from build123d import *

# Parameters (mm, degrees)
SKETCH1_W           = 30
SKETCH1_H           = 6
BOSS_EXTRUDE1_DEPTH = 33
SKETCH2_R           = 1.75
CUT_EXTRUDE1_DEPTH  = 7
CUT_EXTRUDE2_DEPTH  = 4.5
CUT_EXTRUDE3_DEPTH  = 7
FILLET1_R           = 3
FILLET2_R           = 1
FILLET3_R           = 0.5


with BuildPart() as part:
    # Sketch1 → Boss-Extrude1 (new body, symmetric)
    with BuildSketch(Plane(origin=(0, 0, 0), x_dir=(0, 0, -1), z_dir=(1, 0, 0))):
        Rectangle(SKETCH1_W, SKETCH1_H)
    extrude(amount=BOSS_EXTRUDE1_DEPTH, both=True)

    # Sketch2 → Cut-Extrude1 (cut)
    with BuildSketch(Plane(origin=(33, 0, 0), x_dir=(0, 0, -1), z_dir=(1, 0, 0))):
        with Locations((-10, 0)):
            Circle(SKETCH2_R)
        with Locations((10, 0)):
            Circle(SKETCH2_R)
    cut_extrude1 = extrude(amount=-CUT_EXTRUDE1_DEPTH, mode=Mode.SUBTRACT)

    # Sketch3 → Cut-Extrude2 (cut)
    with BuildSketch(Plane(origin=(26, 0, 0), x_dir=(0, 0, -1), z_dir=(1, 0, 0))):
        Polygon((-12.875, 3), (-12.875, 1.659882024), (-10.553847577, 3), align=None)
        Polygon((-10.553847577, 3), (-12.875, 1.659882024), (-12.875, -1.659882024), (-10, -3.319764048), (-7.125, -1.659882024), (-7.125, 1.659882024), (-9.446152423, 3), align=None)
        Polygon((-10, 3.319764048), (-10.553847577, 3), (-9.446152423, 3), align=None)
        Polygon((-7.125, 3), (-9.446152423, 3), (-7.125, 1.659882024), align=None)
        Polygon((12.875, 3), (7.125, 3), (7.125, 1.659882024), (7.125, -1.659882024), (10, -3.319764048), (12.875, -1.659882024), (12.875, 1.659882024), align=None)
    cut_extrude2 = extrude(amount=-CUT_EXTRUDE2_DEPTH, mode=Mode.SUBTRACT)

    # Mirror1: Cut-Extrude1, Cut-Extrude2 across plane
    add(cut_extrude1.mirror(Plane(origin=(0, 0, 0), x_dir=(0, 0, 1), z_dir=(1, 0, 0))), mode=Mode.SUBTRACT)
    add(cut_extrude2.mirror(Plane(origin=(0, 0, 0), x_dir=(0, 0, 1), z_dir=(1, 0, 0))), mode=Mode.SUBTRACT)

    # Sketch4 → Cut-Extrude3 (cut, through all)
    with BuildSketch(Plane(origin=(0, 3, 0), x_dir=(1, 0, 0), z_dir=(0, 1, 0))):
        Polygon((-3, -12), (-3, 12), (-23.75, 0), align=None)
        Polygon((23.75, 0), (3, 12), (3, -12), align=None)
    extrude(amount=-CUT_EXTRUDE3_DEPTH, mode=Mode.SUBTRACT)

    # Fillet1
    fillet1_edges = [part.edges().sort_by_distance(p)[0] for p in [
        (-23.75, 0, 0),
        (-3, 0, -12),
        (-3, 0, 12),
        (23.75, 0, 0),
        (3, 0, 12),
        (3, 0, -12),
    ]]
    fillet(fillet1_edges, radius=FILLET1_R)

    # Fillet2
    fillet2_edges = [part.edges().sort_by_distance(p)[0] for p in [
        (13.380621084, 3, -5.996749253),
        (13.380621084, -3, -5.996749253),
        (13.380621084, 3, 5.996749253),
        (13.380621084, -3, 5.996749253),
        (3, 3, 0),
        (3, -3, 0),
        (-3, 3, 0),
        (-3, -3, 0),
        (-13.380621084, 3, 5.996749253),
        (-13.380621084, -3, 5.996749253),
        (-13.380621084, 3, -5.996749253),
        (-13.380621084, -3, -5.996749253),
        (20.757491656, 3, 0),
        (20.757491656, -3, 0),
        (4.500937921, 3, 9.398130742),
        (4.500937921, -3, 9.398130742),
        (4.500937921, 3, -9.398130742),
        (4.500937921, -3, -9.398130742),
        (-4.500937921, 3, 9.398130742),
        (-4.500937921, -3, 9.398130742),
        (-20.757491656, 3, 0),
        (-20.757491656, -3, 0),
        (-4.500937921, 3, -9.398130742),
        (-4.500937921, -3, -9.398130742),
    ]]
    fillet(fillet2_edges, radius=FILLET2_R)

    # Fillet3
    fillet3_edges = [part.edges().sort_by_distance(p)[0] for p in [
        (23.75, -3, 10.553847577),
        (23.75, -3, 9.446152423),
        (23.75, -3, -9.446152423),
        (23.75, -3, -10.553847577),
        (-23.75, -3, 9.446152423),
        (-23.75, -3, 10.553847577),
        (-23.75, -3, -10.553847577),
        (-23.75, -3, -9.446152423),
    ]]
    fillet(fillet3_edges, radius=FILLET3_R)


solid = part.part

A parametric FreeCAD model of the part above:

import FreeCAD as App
import Part
import Sketcher
from FreeCAD import Vector
Q = App.Units.Quantity


def edges_at(feature, points):
    """Names of the edges that pass closest to the given points."""
    edges = feature.Shape.Edges
    near = lambda p: min(range(len(edges)), key=lambda i: edges[i].distToShape(Part.Vertex(*p))[0])
    return sorted({f"Edge{near(p) + 1}" for p in points})

doc = App.newDocument("Part")
body = doc.addObject("PartDesign::Body", "Body")

# Sketch on YZ plane
sketch1 = body.newObject("Sketcher::SketchObject", "Sketch")
sketch1.AttachmentSupport = (doc.getObject("YZ_Plane"), [""])
sketch1.MapMode = "FlatFace"
sketch1.addGeometry([
    Part.LineSegment(Vector(3, 15, 0), Vector(-3, 15, 0)),
    Part.LineSegment(Vector(-3, 15, 0), Vector(-3, -15, 0)),
    Part.LineSegment(Vector(-3, -15, 0), Vector(3, -15, 0)),
    Part.LineSegment(Vector(3, -15, 0), Vector(3, 15, 0)),
], False)
sketch1.addConstraint([
    Sketcher.Constraint("Coincident", 0, 2, 1, 1),
    Sketcher.Constraint("Coincident", 1, 2, 2, 1),
    Sketcher.Constraint("Coincident", 2, 2, 3, 1),
    Sketcher.Constraint("Coincident", 3, 2, 0, 1),
    Sketcher.Constraint("Horizontal", 0),
    Sketcher.Constraint("Vertical", 1),
    Sketcher.Constraint("Horizontal", 2),
    Sketcher.Constraint("Vertical", 3),
    Sketcher.Constraint("Symmetric", 0, 2, 2, 2, -1, 1),
    Sketcher.Constraint("DistanceX", 0, 2, 0, 1, Q("6 mm")),
    Sketcher.Constraint("DistanceY", 1, 2, 1, 1, Q("30 mm")),
])
pad1 = body.newObject("PartDesign::Pad", "Pad")
pad1.Profile = sketch1
pad1.Length = 66
pad1.Midplane = True

# Sketch on YZ plane
sketch2 = body.newObject("Sketcher::SketchObject", "Sketch001")
sketch2.AttachmentSupport = (doc.getObject("YZ_Plane"), [""])
sketch2.MapMode = "FlatFace"
sketch2.AttachmentOffset = App.Placement(Vector(0, 0, 33), App.Rotation())
sketch2.addGeometry([
    Part.Circle(Vector(0, 10, 0), Vector(0, 0, 1), 1.8),
    Part.Circle(Vector(0, -10, 0), Vector(0, 0, 1), 1.8),
], False)
sketch2.addConstraint([
    Sketcher.Constraint("Equal", 0, 1),
    Sketcher.Constraint("Symmetric", 0, 3, 1, 3, -1, 1),
    Sketcher.Constraint("PointOnObject", 0, 3, -2),
    Sketcher.Constraint("Diameter", 0, Q("3.5 mm")),
    Sketcher.Constraint("DistanceY", -1, 1, 0, 3, Q("10 mm")),
])
pocket1 = body.newObject("PartDesign::Pocket", "Pocket")
pocket1.Profile = sketch2
pocket1.Length = 7

# Sketch on YZ plane
sketch3 = body.newObject("Sketcher::SketchObject", "Sketch002")
sketch3.AttachmentSupport = (doc.getObject("YZ_Plane"), [""])
sketch3.MapMode = "FlatFace"
sketch3.AttachmentOffset = App.Placement(Vector(0, 0, 26), App.Rotation())
sketch3.addGeometry([
    Part.LineSegment(Vector(3, 12.9, 0), Vector(-1.7, 12.9, 0)),  # 0
    Part.LineSegment(Vector(-1.7, 12.9, 0), Vector(-3.3, 10, 0)),  # 1
    Part.LineSegment(Vector(-3.3, 10, 0), Vector(-1.7, 7.1, 0)),  # 2
    Part.LineSegment(Vector(-1.7, 7.1, 0), Vector(3, 7.1, 0)),  # 3
    Part.LineSegment(Vector(3, 7.1, 0), Vector(3, 9.4, 0)),  # 4
    Part.LineSegment(Vector(3, 9.4, 0), Vector(3.3, 10, 0)),  # 5
    Part.LineSegment(Vector(3.3, 10, 0), Vector(3, 10.6, 0)),  # 6
    Part.LineSegment(Vector(3, 10.6, 0), Vector(3, 12.9, 0)),  # 7
    Part.LineSegment(Vector(3, -12.9, 0), Vector(3, -7.1, 0)),  # 8
    Part.LineSegment(Vector(3, -7.1, 0), Vector(-1.7, -7.1, 0)),  # 9
    Part.LineSegment(Vector(-1.7, -7.1, 0), Vector(-3.3, -10, 0)),  # 10
    Part.LineSegment(Vector(-3.3, -10, 0), Vector(-1.7, -12.9, 0)),  # 11
    Part.LineSegment(Vector(-1.7, -12.9, 0), Vector(3, -12.9, 0)),  # 12
], False)
sketch3.addConstraint([
    Sketcher.Constraint("Coincident", 0, 2, 1, 1),
    Sketcher.Constraint("Coincident", 1, 2, 2, 1),
    Sketcher.Constraint("Coincident", 2, 2, 3, 1),
    Sketcher.Constraint("Coincident", 3, 2, 4, 1),
    Sketcher.Constraint("Coincident", 4, 2, 5, 1),
    Sketcher.Constraint("Coincident", 5, 2, 6, 1),
    Sketcher.Constraint("Coincident", 6, 2, 7, 1),
    Sketcher.Constraint("Coincident", 7, 2, 0, 1),
    Sketcher.Constraint("Coincident", 8, 2, 9, 1),
    Sketcher.Constraint("Coincident", 9, 2, 10, 1),
    Sketcher.Constraint("Coincident", 10, 2, 11, 1),
    Sketcher.Constraint("Coincident", 11, 2, 12, 1),
    Sketcher.Constraint("Coincident", 12, 2, 8, 1),
    Sketcher.Constraint("Horizontal", 0),
    Sketcher.Constraint("Horizontal", 3),
    Sketcher.Constraint("Vertical", 4),
    Sketcher.Constraint("Vertical", 7),
    Sketcher.Constraint("Vertical", 8),
    Sketcher.Constraint("Horizontal", 9),
    Sketcher.Constraint("Horizontal", 12),
    Sketcher.Constraint("Symmetric", 5, 2, 10, 2, -1, 1),
    Sketcher.Constraint("Symmetric", 1, 2, 5, 2, -2),
    Sketcher.Constraint("Symmetric", 3, 2, 8, 2, -1),
    Sketcher.Constraint("Symmetric", 0, 2, 11, 2, -1),
    Sketcher.Constraint("Parallel", 1, 5),
    Sketcher.Constraint("Parallel", 2, 6),
    Sketcher.Constraint("Parallel", 5, 10),
    Sketcher.Constraint("Parallel", 6, 11),
    Sketcher.Constraint("Vertical", 0, 2, 2, 2),
    Sketcher.Constraint("Vertical", 4, 2, 6, 2),
    Sketcher.Constraint("Angle", 1, Q("-120 deg")),
    Sketcher.Constraint("DistanceY", -1, 1, 1, 2, Q("10 mm")),
    Sketcher.Constraint("DistanceX", -1, 1, 3, 2, Q("3 mm")),
    Sketcher.Constraint("DistanceY", 8, 1, 8, 2, Q("5.75 mm")),
    Sketcher.Constraint("Distance", 5, Q("0.639528 mm")),
])
pocket2 = body.newObject("PartDesign::Pocket", "Pocket001")
pocket2.Profile = sketch3
pocket2.Length = 4.5
doc.recompute()

mirrored = body.newObject("PartDesign::Mirrored", "Mirrored")
mirrored.Originals = [pocket1, pocket2]
mirrored.MirrorPlane = (doc.getObject("YZ_Plane"), [""])
body.Tip = mirrored

# Sketch on XZ plane
sketch4 = body.newObject("Sketcher::SketchObject", "Sketch003")
sketch4.AttachmentSupport = (doc.getObject("XZ_Plane"), [""])
sketch4.MapMode = "FlatFace"
sketch4.AttachmentOffset = App.Placement(Vector(0, 0, -3), App.Rotation())
sketch4.addGeometry([
    Part.LineSegment(Vector(-3, 12, 0), Vector(-3, -12, 0)),  # 0
    Part.LineSegment(Vector(-3, -12, 0), Vector(-24, 0, 0)),  # 1
    Part.LineSegment(Vector(-24, 0, 0), Vector(-3, 12, 0)),  # 2
    Part.LineSegment(Vector(24, 0, 0), Vector(3, -12, 0)),  # 3
    Part.LineSegment(Vector(3, -12, 0), Vector(3, 12, 0)),  # 4
    Part.LineSegment(Vector(3, 12, 0), Vector(24, 0, 0)),  # 5
], False)
sketch4.addConstraint([
    Sketcher.Constraint("Coincident", 0, 2, 1, 1),
    Sketcher.Constraint("Coincident", 1, 2, 2, 1),
    Sketcher.Constraint("Coincident", 2, 2, 0, 1),
    Sketcher.Constraint("Coincident", 3, 2, 4, 1),
    Sketcher.Constraint("Coincident", 4, 2, 5, 1),
    Sketcher.Constraint("Coincident", 5, 2, 3, 1),
    Sketcher.Constraint("Vertical", 0),
    Sketcher.Constraint("Vertical", 4),
    Sketcher.Constraint("Symmetric", 2, 2, 3, 2, -1, 1),
    Sketcher.Constraint("Symmetric", 1, 2, 5, 2, -1, 1),
    Sketcher.Constraint("PointOnObject", 1, 2, -1),
    Sketcher.Constraint("Parallel", 1, 5),
    Sketcher.Constraint("Horizontal", 0, 2, 3, 2),
    Sketcher.Constraint("DistanceY", 0, 2, 0, 1, Q("24 mm")),
    Sketcher.Constraint("DistanceX", 0, 2, -1, 1, Q("3 mm")),
    Sketcher.Constraint("DistanceX", 1, 2, 5, 2, Q("47.5 mm")),
])
pocket3 = body.newObject("PartDesign::Pocket", "Pocket002")
pocket3.Profile = sketch4
pocket3.Type = "ThroughAll"
pocket3.Reversed = True
doc.recompute()

fillet = body.newObject("PartDesign::Fillet", "Fillet")
fillet.Base = (pocket3, edges_at(pocket3, [
    (-23.75, 0, 0),
    (-3, 0, -12),
    (-3, 0, 12),
    (23.75, 0, 0),
    (3, 0, 12),
    (3, 0, -12),
]))
fillet.Radius = 3
doc.recompute()

fillet2 = body.newObject("PartDesign::Fillet", "Fillet001")
fillet2.Base = (fillet, edges_at(fillet, [
    (13.381, 3, -5.997),
    (13.381, -3, -5.997),
    (13.381, 3, 5.997),
    (13.381, -3, 5.997),
    (3, 3, 0),
    (3, -3, 0),
    (-3, 3, 0),
    (-3, -3, 0),
    (-13.381, 3, 5.997),
    (-13.381, -3, 5.997),
    (-13.381, 3, -5.997),
    (-13.381, -3, -5.997),
    (20.757, 3, 0),
    (20.757, -3, 0),
    (4.501, 3, 9.398),
    (4.501, -3, 9.398),
    (4.501, 3, -9.398),
    (4.501, -3, -9.398),
    (-4.501, 3, 9.398),
    (-4.501, -3, 9.398),
    (-20.757, 3, 0),
    (-20.757, -3, 0),
    (-4.501, 3, -9.398),
    (-4.501, -3, -9.398),
]))
fillet2.Radius = 1
doc.recompute()

fillet3 = body.newObject("PartDesign::Fillet", "Fillet002")
fillet3.Base = (fillet2, edges_at(fillet2, [
    (23.75, -3, 10.554),
    (23.75, -3, 9.446),
    (23.75, -3, -9.446),
    (23.75, -3, -10.554),
    (-23.75, -3, 9.446),
    (-23.75, -3, 10.554),
    (-23.75, -3, -10.554),
    (-23.75, -3, -9.446),
]))
fillet3.Radius = 0.5

doc.recompute()
